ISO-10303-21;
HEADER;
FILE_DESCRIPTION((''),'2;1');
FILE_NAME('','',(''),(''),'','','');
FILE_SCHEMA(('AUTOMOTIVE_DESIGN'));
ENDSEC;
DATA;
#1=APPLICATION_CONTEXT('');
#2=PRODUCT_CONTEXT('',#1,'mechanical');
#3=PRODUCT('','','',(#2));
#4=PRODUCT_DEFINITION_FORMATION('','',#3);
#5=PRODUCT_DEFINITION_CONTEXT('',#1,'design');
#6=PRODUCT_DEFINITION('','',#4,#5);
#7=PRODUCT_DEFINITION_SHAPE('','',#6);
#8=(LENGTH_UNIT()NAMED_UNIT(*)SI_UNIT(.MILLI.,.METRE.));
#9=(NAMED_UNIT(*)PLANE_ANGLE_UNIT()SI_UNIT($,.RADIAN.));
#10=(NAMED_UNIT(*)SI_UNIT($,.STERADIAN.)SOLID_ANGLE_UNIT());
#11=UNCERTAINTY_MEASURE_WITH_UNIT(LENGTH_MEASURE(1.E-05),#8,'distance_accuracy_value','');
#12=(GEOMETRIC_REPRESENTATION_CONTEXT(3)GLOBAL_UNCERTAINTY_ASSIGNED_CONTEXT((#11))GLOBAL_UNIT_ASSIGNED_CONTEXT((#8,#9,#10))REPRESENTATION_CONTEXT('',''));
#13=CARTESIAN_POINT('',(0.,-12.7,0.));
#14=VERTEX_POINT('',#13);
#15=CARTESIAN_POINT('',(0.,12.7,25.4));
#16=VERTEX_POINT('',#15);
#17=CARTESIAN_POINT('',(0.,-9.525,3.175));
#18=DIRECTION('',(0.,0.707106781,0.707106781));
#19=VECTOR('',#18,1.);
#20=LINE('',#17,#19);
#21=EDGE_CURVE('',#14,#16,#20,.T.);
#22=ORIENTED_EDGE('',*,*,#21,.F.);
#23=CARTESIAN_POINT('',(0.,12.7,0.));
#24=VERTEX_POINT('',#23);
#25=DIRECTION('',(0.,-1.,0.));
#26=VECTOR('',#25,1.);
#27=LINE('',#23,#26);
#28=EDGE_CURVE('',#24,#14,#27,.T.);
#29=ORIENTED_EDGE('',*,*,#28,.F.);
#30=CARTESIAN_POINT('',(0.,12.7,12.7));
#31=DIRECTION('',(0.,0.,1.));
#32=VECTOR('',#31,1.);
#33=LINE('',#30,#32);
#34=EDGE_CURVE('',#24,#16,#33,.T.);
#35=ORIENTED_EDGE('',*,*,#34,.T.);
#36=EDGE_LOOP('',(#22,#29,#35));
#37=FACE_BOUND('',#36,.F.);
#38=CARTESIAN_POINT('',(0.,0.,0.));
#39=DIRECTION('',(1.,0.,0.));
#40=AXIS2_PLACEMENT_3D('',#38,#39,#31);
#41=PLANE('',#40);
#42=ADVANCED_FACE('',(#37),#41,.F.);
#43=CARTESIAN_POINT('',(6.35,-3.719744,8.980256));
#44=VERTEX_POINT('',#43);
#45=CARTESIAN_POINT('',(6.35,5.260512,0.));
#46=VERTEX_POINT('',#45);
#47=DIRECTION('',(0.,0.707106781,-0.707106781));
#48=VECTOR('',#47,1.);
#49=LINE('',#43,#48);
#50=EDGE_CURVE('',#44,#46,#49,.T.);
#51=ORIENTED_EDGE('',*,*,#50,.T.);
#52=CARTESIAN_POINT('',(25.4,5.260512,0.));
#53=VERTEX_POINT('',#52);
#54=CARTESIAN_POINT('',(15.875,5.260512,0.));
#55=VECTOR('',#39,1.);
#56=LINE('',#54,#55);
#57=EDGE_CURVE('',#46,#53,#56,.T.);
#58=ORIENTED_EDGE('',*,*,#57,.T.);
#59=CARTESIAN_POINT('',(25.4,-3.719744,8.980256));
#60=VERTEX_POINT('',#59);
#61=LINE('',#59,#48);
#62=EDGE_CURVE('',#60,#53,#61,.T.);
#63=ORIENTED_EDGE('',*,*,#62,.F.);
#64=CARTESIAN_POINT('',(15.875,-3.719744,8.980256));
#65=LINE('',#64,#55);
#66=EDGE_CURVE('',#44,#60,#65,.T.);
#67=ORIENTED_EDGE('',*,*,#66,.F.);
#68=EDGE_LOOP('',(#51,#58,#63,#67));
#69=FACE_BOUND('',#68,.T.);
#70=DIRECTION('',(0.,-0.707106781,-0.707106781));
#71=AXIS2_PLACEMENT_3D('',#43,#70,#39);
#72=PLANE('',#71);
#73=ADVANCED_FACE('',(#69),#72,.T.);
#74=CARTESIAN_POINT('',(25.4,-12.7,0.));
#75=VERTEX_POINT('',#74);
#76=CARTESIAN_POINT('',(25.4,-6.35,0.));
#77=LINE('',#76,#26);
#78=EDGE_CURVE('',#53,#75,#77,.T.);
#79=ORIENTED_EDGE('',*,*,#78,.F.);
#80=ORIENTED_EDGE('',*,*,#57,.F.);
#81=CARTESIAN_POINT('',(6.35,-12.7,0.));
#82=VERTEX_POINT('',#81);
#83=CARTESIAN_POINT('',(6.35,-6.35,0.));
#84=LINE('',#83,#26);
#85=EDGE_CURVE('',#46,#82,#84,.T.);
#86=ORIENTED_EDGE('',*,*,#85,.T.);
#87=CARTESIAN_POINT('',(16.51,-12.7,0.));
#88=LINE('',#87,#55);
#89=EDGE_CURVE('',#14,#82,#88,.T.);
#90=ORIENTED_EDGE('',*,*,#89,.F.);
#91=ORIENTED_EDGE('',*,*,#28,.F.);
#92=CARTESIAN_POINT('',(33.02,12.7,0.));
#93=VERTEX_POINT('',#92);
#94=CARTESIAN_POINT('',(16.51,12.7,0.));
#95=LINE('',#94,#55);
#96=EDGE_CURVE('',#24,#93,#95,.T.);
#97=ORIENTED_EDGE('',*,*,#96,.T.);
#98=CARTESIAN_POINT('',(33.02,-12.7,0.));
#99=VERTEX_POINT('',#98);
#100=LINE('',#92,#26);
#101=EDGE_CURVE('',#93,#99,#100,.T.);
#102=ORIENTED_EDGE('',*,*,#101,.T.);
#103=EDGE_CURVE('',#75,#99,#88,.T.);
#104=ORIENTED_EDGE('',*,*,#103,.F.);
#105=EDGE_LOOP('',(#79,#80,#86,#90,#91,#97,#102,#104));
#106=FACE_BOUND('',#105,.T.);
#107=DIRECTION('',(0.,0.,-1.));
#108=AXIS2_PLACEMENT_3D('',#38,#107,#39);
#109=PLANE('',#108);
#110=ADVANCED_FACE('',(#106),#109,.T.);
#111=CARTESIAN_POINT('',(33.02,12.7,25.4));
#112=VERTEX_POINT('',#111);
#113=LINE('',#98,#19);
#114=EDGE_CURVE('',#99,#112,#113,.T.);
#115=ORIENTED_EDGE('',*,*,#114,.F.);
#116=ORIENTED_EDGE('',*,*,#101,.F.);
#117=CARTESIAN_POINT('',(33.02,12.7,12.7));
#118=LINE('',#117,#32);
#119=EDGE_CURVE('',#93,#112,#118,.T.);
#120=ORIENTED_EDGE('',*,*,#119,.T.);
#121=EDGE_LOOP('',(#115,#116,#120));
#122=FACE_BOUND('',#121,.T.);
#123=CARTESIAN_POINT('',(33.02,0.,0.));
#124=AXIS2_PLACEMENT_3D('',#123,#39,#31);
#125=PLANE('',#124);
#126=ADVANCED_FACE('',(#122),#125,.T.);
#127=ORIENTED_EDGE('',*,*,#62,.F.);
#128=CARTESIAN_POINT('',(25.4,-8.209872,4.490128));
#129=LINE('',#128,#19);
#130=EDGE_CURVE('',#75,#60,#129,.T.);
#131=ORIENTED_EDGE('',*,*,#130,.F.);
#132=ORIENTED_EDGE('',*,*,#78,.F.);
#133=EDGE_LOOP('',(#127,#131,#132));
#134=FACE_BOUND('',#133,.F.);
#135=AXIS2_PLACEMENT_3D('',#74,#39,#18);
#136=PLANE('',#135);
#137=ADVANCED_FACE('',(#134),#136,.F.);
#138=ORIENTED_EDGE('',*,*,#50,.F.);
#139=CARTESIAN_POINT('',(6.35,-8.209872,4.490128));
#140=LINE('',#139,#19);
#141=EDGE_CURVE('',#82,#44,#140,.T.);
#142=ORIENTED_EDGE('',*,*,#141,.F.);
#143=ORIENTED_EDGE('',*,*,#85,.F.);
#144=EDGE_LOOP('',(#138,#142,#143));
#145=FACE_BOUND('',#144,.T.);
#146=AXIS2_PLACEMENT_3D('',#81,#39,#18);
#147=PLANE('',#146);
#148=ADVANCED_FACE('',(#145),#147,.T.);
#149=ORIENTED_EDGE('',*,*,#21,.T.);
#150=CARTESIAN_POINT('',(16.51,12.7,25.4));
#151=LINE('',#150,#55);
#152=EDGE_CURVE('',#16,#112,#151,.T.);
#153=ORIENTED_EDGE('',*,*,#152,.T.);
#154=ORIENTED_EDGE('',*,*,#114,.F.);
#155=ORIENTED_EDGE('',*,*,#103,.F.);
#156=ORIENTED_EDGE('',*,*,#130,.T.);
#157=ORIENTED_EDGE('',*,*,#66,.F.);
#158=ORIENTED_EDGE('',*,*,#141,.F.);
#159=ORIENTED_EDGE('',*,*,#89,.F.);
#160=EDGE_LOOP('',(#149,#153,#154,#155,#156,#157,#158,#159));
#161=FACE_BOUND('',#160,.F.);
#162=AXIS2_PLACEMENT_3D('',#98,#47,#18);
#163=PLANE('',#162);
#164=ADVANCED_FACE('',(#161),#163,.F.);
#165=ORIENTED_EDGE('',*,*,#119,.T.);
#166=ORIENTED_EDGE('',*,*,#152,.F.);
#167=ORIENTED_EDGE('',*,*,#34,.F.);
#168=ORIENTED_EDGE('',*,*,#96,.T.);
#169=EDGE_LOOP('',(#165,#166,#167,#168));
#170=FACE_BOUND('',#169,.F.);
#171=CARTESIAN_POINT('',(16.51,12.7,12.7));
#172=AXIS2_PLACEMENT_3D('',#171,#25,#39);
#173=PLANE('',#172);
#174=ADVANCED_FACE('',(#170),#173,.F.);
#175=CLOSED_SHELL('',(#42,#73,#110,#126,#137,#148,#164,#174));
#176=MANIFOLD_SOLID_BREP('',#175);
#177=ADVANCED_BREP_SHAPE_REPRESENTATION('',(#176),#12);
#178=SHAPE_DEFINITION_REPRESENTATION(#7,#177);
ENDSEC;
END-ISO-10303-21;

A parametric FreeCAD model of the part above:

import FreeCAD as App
import Part
import Sketcher
from FreeCAD import Vector
Q = App.Units.Quantity


def add_polygon(sketch, points):
    """Adds a closed chain of lines whose ends are joined by coincident constraints."""
    first, n = sketch.GeometryCount, len(points)
    for a, b in zip(points, points[1:] + points[:1]):
        sketch.addGeometry(Part.LineSegment(App.Vector(*a, 0), App.Vector(*b, 0)), False)
    for i in range(n):
        sketch.addConstraint(Sketcher.Constraint("Coincident", first + i, 2, first + (i + 1) % n, 1))

doc = App.newDocument("Part")
body = doc.addObject("PartDesign::Body", "Body")

sketch1 = body.newObject("Sketcher::SketchObject", "Sketch")
sketch1.AttachmentSupport = (doc.getObject("XZ_Plane"), [""])
sketch1.MapMode = "FlatFace"
add_polygon(sketch1, [(0, 25.4), (0, 0), (33.02, 0), (33.02, 25.4)])
sketch1.addConstraint(Sketcher.Constraint("Vertical", 0))
sketch1.addConstraint(Sketcher.Constraint("Horizontal", 1))
sketch1.addConstraint(Sketcher.Constraint("Vertical", 2))
sketch1.addConstraint(Sketcher.Constraint("Horizontal", 3))
sketch1.addConstraint(Sketcher.Constraint("Coincident", 0, 2, -1, 1))
sketch1.addConstraint(Sketcher.Constraint("DistanceY", 0, 2, 0, 1, Q("1 in")))
sketch1.addConstraint(Sketcher.Constraint("DistanceX", 1, 1, 1, 2, Q("1.3 in")))
pad1 = body.newObject("PartDesign::Pad", "Pad")
pad1.Profile = sketch1
pad1.Length = Q("1 in")
pad1.Midplane = True

sketch2 = body.newObject("Sketcher::SketchObject", "Sketch001")
sketch2.AttachmentSupport = (doc.getObject("YZ_Plane"), [""])
sketch2.MapMode = "FlatFace"
sketch2.AttachmentOffset = App.Placement(Vector(0, 0, 1.3 * 25.4), App.Rotation())
add_polygon(sketch2, [(-12.7, 0), (12.7, 25.4), (-12.7, 25.4)])
sketch2.addConstraint(Sketcher.Constraint("Horizontal", 1))
sketch2.addConstraint(Sketcher.Constraint("Vertical", 2))
sketch2.addConstraint(Sketcher.Constraint("PointOnObject", 2, 2, -1))
sketch2.addConstraint(Sketcher.Constraint("Equal", 1, 2))
sketch2.addConstraint(Sketcher.Constraint("DistanceX", 1, 2, 1, 1, Q("1 in")))
sketch2.addConstraint(Sketcher.Constraint("DistanceX", -1, 1, 0, 2, Q("0.5 in")))
pocket1 = body.newObject("PartDesign::Pocket", "Pocket")
pocket1.Profile = sketch2
pocket1.Type = "ThroughAll"

sketch3 = body.newObject("Sketcher::SketchObject", "Sketch002")
sketch3.Placement = App.Placement(Vector(0, -6.35, 6.35), App.Rotation(Vector(1, 0, 0), Vector(0, 0.707106781, 0.707106781), Vector(0, -0.707106781, 0.707106781), "ZXY"))
add_polygon(sketch3, [(6.35, 3.719744), (6.35, -8.980256), (25.4, -8.980256), (25.4, 3.719744)])
sketch3.addConstraint(Sketcher.Constraint("Vertical", 0))
sketch3.addConstraint(Sketcher.Constraint("Horizontal", 1))
sketch3.addConstraint(Sketcher.Constraint("Vertical", 2))
sketch3.addConstraint(Sketcher.Constraint("Horizontal", 3))
sketch3.addConstraint(Sketcher.Constraint("DistanceY", 0, 2, 0, 1, Q("0.5 in")))
sketch3.addConstraint(Sketcher.Constraint("DistanceX", -1, 1, 1, 2, Q("1 in")))
sketch3.addConstraint(Sketcher.Constraint("DistanceX", 1, 1, 1, 2, Q("0.75 in")))
sketch3.addConstraint(Sketcher.Constraint("DistanceY", 0, 2, -1, 1, 8.980256))
pocket2 = body.newObject("PartDesign::Pocket", "Pocket001")
pocket2.Profile = sketch3
pocket2.Length = Q("0.5 in")

doc.recompute()
